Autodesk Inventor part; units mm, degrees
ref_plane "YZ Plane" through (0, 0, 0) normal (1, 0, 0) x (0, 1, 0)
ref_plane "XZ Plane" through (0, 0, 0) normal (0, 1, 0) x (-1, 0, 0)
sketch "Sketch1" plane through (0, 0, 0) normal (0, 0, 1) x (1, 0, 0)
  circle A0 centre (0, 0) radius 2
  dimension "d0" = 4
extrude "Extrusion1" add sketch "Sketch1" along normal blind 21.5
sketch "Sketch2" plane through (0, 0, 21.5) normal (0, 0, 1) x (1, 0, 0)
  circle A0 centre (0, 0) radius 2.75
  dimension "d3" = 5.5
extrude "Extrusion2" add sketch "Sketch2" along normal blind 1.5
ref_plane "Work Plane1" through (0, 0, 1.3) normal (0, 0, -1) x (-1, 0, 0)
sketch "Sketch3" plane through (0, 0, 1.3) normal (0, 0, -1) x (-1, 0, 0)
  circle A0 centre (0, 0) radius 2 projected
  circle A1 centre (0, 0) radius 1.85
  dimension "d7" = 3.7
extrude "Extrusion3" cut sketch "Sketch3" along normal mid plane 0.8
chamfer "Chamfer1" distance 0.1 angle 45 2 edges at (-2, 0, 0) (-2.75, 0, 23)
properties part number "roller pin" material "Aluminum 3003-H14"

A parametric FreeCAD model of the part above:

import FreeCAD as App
import Part
import Sketcher

V = App.Vector


def edges_at(feature, points):
    """Names of the edges that pass closest to the given points."""
    edges = feature.Shape.Edges
    near = lambda p: min(range(len(edges)), key=lambda i: edges[i].distToShape(Part.Vertex(*p))[0])
    return sorted({f"Edge{near(p) + 1}" for p in points})

doc = App.newDocument("Part")
params = doc.addObject("Spreadsheet::Sheet", "Params")
for row, (alias, value) in enumerate([
    ("sketch1_diameter", "4 mm"),
    ("pad1_length", "21.5 mm"),
    ("sketch2_diameter", "5.5 mm"),
    ("pad2_length", "1.5 mm"),
    ("sketch3_diameter", "3.7 mm"),
    ("sketch3_diameter2", "4 mm"),
    ("pocket1_length", "0.8 mm"),
    ("chamfer_size", "0.1 mm"),
], start=1):
    params.set(f"A{row}", alias)
    params.set(f"B{row}", "=" + value)
    params.setAlias(f"B{row}", alias)

body = doc.addObject("PartDesign::Body", "Body")

# Sketch on XY plane
sketch1 = body.newObject("Sketcher::SketchObject", "Sketch")
sketch1.AttachmentSupport = (doc.getObject("XY_Plane"), [""])
sketch1.MapMode = "FlatFace"
sketch1.addGeometry(Part.Circle(V(0, 0, 0), V(0, 0, 1), 2), False)
sketch1.addConstraint([
    Sketcher.Constraint("Coincident", 0, 3, -1, 1),
    Sketcher.Constraint("Diameter", 0, 4.0),
])
sketch1.setExpression("Constraints[1]", "Params.sketch1_diameter")
pad1 = body.newObject("PartDesign::Pad", "Pad")
pad1.Profile = sketch1
pad1.setExpression("Length", "Params.pad1_length")

# Sketch on XY plane
sketch2 = body.newObject("Sketcher::SketchObject", "Sketch001")
sketch2.AttachmentSupport = (doc.getObject("XY_Plane"), [""])
sketch2.MapMode = "FlatFace"
sketch2.AttachmentOffset = App.Placement(V(0, 0, 21.5), App.Rotation())
sketch2.addGeometry(Part.Circle(V(0, 0, 0), V(0, 0, 1), 2.75), False)
sketch2.addConstraint([
    Sketcher.Constraint("Coincident", 0, 3, -1, 1),
    Sketcher.Constraint("Diameter", 0, 5.5),
])
sketch2.setExpression("Constraints[1]", "Params.sketch2_diameter")
pad2 = body.newObject("PartDesign::Pad", "Pad001")
pad2.Profile = sketch2
pad2.setExpression("Length", "Params.pad2_length")

# Sketch on XY plane
sketch3 = body.newObject("Sketcher::SketchObject", "Sketch002")
sketch3.AttachmentSupport = (doc.getObject("XY_Plane"), [""])
sketch3.MapMode = "FlatFace"
sketch3.AttachmentOffset = App.Placement(V(0, 0, 1.3), App.Rotation())
sketch3.addGeometry([
    Part.Circle(V(0, 0, 0), V(0, 0, 1), 2),
    Part.Circle(V(0, 0, 0), V(0, 0, 1), 1.85),
], False)
sketch3.addConstraint([
    Sketcher.Constraint("Coincident", 0, 3, -1, 1),
    Sketcher.Constraint("Coincident", 1, 3, -1, 1),
    Sketcher.Constraint("Diameter", 1, 3.7),
    Sketcher.Constraint("Diameter", 0, 4.0),
])
sketch3.setExpression("Constraints[2]", "Params.sketch3_diameter")
sketch3.setExpression("Constraints[3]", "Params.sketch3_diameter2")
pocket1 = body.newObject("PartDesign::Pocket", "Pocket")
pocket1.Profile = sketch3
pocket1.setExpression("Length", "Params.pocket1_length")
pocket1.Midplane = True
doc.recompute()

chamfer = body.newObject("PartDesign::Chamfer", "Chamfer")
chamfer.Base = (pocket1, edges_at(pocket1, [(-2, 0, 0), (-2.75, 0, 23)]))
chamfer.setExpression("Size", "Params.chamfer_size")

doc.recompute()
